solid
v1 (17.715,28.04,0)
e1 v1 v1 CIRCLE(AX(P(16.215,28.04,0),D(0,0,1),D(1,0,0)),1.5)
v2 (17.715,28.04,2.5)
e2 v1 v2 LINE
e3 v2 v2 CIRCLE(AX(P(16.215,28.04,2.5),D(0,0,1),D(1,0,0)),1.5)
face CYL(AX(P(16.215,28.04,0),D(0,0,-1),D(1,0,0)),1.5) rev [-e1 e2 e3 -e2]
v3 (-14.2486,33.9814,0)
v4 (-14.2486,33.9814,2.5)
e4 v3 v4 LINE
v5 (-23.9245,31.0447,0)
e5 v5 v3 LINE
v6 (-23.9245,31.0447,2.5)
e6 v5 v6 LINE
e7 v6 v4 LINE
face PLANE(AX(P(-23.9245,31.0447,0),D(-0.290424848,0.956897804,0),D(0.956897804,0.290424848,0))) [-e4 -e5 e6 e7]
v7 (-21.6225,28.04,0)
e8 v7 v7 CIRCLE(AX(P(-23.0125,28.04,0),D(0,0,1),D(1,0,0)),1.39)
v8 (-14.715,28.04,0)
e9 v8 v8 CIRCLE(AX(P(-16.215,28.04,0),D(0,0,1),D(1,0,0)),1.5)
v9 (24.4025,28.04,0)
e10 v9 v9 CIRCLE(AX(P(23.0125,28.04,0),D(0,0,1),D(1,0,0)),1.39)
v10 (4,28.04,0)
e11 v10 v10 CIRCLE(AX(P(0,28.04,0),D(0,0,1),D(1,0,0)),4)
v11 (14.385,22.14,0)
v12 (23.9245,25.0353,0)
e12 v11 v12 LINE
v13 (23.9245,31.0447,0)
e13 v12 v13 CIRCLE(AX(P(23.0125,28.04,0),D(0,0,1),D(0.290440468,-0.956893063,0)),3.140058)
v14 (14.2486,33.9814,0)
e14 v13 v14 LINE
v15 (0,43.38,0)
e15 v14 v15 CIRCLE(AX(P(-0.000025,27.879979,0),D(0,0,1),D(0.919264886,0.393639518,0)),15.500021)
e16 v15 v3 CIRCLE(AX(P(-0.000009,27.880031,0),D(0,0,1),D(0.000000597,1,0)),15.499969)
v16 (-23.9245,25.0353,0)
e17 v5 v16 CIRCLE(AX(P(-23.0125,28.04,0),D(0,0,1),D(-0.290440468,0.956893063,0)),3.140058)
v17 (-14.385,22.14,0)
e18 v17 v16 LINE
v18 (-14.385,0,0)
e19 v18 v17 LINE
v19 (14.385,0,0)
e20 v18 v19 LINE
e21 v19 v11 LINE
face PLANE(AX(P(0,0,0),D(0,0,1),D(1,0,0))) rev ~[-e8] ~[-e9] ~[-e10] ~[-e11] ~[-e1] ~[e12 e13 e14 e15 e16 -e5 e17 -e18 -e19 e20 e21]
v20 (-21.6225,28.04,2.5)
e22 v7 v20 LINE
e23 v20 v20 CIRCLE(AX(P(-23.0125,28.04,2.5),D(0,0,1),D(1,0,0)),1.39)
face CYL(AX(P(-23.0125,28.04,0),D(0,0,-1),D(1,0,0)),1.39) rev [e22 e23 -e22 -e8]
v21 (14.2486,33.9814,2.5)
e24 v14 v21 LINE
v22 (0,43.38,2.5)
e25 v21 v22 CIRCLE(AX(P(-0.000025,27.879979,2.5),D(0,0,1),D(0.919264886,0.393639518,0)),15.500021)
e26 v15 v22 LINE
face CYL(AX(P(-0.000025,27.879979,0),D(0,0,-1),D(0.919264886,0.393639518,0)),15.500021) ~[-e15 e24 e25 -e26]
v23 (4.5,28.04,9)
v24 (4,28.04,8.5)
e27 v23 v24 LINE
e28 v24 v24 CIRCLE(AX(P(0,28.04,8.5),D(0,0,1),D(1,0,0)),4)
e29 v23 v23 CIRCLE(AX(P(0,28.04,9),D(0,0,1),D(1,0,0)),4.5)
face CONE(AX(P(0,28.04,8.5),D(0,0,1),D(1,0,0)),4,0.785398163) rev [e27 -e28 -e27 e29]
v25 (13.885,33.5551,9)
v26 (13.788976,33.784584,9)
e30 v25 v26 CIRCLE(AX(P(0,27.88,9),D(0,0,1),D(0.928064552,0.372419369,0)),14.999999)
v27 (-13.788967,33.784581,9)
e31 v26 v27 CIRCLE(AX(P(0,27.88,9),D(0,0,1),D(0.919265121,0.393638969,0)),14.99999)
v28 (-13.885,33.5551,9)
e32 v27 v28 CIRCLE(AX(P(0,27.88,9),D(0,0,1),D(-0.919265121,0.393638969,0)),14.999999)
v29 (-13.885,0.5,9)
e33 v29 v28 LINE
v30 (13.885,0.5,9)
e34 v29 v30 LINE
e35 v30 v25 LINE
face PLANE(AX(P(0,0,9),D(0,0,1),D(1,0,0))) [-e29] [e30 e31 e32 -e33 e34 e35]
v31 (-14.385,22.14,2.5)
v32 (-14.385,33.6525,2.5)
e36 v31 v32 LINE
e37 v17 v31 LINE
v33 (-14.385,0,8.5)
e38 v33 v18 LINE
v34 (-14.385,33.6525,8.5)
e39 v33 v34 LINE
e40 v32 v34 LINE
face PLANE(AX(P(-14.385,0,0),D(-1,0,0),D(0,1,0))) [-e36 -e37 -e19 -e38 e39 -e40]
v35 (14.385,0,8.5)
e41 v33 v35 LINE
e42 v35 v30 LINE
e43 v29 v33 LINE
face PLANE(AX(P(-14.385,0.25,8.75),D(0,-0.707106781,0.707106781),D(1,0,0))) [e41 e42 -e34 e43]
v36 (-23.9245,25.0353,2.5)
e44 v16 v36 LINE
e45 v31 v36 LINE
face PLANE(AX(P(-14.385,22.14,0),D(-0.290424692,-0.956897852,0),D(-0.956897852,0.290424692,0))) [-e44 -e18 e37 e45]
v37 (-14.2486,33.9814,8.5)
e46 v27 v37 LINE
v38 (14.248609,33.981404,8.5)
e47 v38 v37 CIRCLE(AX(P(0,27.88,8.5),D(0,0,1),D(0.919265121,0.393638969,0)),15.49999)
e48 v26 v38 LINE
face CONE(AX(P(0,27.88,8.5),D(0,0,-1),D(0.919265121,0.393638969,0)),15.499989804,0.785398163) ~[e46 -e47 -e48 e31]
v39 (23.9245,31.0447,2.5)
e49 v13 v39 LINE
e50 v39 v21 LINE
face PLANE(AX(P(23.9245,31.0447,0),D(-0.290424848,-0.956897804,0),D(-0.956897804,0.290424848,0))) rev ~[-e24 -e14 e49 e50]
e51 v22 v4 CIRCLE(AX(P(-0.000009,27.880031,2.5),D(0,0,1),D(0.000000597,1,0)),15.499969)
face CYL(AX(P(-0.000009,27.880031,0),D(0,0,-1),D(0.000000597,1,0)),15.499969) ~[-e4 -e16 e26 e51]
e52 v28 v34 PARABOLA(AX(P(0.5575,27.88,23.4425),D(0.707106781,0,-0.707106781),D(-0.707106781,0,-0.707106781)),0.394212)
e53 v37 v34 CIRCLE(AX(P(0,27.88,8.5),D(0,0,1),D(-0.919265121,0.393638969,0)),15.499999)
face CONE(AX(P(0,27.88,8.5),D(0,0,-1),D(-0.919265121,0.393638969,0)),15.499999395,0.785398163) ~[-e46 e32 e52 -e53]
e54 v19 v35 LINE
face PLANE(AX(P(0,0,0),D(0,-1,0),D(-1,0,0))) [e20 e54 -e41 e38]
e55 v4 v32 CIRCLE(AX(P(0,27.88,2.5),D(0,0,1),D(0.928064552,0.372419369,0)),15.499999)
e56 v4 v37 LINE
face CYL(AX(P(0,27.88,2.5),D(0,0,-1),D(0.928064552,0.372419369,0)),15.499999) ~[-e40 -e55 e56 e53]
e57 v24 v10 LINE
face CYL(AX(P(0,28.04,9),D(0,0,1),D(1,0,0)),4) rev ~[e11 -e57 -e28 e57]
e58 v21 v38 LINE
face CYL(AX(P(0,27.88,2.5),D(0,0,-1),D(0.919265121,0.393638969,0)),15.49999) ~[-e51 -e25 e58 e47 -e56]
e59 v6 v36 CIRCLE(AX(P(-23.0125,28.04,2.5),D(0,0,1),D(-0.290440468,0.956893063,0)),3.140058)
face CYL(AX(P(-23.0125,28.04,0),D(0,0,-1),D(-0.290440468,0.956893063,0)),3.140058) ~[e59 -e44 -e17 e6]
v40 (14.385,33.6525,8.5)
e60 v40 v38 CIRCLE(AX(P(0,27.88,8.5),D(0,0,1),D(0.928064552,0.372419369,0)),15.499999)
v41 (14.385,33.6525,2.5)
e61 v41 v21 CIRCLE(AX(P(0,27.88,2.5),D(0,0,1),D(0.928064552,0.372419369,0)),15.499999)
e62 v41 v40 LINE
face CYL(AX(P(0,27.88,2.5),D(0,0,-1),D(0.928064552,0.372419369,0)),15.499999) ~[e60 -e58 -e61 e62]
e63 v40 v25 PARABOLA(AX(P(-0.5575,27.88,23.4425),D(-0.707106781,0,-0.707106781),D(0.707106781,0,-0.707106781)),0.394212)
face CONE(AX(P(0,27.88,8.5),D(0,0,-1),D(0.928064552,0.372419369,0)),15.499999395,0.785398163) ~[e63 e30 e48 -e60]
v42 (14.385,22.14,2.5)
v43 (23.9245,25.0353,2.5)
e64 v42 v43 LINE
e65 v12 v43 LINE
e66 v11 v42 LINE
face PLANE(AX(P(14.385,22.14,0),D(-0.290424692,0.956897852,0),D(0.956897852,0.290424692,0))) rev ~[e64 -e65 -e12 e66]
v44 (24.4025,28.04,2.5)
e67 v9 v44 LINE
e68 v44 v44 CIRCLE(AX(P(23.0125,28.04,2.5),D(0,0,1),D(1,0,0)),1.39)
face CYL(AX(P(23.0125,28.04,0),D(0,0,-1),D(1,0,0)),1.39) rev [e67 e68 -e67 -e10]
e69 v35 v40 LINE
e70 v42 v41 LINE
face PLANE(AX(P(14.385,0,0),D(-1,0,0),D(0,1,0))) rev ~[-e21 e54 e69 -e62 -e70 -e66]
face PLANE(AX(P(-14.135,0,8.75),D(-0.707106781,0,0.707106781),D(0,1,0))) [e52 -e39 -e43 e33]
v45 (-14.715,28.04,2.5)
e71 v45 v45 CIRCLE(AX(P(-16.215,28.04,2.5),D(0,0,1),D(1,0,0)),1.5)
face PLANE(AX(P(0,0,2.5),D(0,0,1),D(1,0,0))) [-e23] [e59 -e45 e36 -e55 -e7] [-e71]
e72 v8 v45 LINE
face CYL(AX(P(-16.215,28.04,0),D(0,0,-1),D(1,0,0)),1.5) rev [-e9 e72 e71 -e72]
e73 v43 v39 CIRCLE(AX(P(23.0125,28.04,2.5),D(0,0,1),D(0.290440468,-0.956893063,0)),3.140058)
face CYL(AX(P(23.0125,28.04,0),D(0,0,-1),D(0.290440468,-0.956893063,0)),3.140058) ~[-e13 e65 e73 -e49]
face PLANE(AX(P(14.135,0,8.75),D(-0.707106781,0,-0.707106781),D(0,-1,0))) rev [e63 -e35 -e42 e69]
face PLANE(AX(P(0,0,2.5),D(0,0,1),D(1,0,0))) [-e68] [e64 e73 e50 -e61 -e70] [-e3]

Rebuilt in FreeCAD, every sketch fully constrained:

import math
import FreeCAD as App
import Part
import Sketcher

V = App.Vector


def edges_at(feature, points):
    """Names of the edges that pass closest to the given points."""
    edges = feature.Shape.Edges
    near = lambda p: min(range(len(edges)), key=lambda i: edges[i].distToShape(Part.Vertex(*p))[0])
    return sorted({f"Edge{near(p) + 1}" for p in points})

doc = App.newDocument("Part")
body = doc.addObject("PartDesign::Body", "Body")

sketch1 = doc.addObject("Sketcher::SketchObject", "Sketch")
body.addObject(sketch1)
sketch1.AttachmentSupport = (doc.XY_Plane, [""])
sketch1.MapMode = "FlatFace"
sketch1.addGeometry([
    Part.LineSegment(V(-14.4, 0, 0), V(14.4, 0, 0)),
    Part.LineSegment(V(14.4, 0, 0), V(14.4, 22.1, 0)),
    Part.LineSegment(V(14.4, 22.1, 0), V(23.9, 25, 0)),
    Part.ArcOfCircle(Part.Circle(V(23, 28, 0), V(0, 0, 1), 3.1), math.radians(-73), math.radians(73)),
    Part.LineSegment(V(23.9, 31, 0), V(14.2, 34, 0)),
    Part.ArcOfCircle(Part.Circle(V(0, 27.9, 0), V(0, 0, 1), 15.5), math.radians(23), math.radians(90)),
    Part.ArcOfCircle(Part.Circle(V(0, 27.9, 0), V(0, 0, 1), 15.5), math.radians(90), math.radians(157)),
    Part.LineSegment(V(-14.2, 34, 0), V(-23.9, 31, 0)),
    Part.ArcOfCircle(Part.Circle(V(-23, 28, 0), V(0, 0, 1), 3.1), math.radians(107), math.radians(253)),
    Part.LineSegment(V(-23.9, 25, 0), V(-14.4, 22.1, 0)),
    Part.LineSegment(V(-14.4, 22.1, 0), V(-14.4, 0, 0)),
    Part.Circle(V(-23, 28, 0), V(0, 0, 1), 1.4),
    Part.Circle(V(-16.2, 28, 0), V(0, 0, 1), 1.5),
    Part.Circle(V(16.2, 28, 0), V(0, 0, 1), 1.5),
    Part.Circle(V(23, 28, 0), V(0, 0, 1), 1.4),
], False)
sketch1.addConstraint([
    Sketcher.Constraint("Coincident", 0, 2, 1, 1),
    Sketcher.Constraint("Coincident", 1, 2, 2, 1),
    Sketcher.Constraint("Tangent", 2, 2, 3, 1),
    Sketcher.Constraint("Tangent", 3, 2, 4, 1),
    Sketcher.Constraint("Coincident", 4, 2, 5, 1),
    Sketcher.Constraint("Tangent", 5, 2, 6, 1),
    Sketcher.Constraint("Coincident", 6, 2, 7, 1),
    Sketcher.Constraint("Tangent", 7, 2, 8, 1),
    Sketcher.Constraint("Tangent", 8, 2, 9, 1),
    Sketcher.Constraint("Coincident", 9, 2, 10, 1),
    Sketcher.Constraint("Coincident", 10, 2, 0, 1),
    Sketcher.Constraint("Horizontal", 0),
    Sketcher.Constraint("Vertical", 1),
    Sketcher.Constraint("Vertical", 10),
    Sketcher.Constraint("Coincident", 11, 3, 8, 3),
    Sketcher.Constraint("Coincident", 14, 3, 3, 3),
    Sketcher.Constraint("Equal", 5, 6),
    Sketcher.Constraint("Equal", 3, 8),
    Sketcher.Constraint("Equal", 12, 13),
    Sketcher.Constraint("Equal", 11, 14),
    Sketcher.Constraint("Symmetric", 0, 2, 10, 2, -1, 1),
    Sketcher.Constraint("Symmetric", 3, 3, 8, 3, -2),
    Sketcher.Constraint("Symmetric", 12, 3, 13, 3, -2),
    Sketcher.Constraint("Symmetric", 4, 2, 6, 2, -2),
    Sketcher.Constraint("PointOnObject", 5, 2, -2),
    Sketcher.Constraint("Parallel", 2, 7),
    Sketcher.Constraint("Parallel", 4, 9),
    Sketcher.Constraint("Horizontal", 11, 3, 12, 3),
    Sketcher.Constraint("Diameter", 12, 3.0),
    Sketcher.Constraint("Radius", 5, 15.5),
    Sketcher.Constraint("Diameter", 11, 2.78),
    Sketcher.Constraint("Radius", 3, 3.14),
    Sketcher.Constraint("DistanceY", 1, 2, 13, 3, 5.9),
    Sketcher.Constraint("DistanceY", -1, 1, 5, 2, 43.38),
    Sketcher.Constraint("DistanceY", 12, 3, 5, 2, 15.34),
    Sketcher.Constraint("DistanceX", 12, 3, -1, 1, 16.215),
    Sketcher.Constraint("DistanceX", -1, 1, 0, 2, 14.385),
    Sketcher.Constraint("DistanceX", -1, 1, 3, 3, 23.0125),
])
pad1 = doc.addObject("PartDesign::Pad", "Pad")
body.addObject(pad1)
pad1.Profile = sketch1
pad1.Length = 2.5

sketch2 = doc.addObject("Sketcher::SketchObject", "Sketch001")
body.addObject(sketch2)
sketch2.AttachmentSupport = (doc.XY_Plane, [""])
sketch2.MapMode = "FlatFace"
sketch2.AttachmentOffset = App.Placement(V(0, 0, 2.5), App.Rotation())
sketch2.addGeometry([
    Part.LineSegment(V(-14, 34, 0), V(-14, 0, 0)),
    Part.LineSegment(V(-14, 0, 0), V(14, 0, 0)),
    Part.LineSegment(V(14, 0, 0), V(14, 34, 0)),
    Part.ArcOfCircle(Part.Circle(V(0, 28, 0), V(0, 0, 1), 15), math.radians(22), math.radians(158)),
], False)
sketch2.addConstraint([
    Sketcher.Constraint("Coincident", 0, 2, 1, 1),
    Sketcher.Constraint("Coincident", 1, 2, 2, 1),
    Sketcher.Constraint("Coincident", 2, 2, 3, 1),
    Sketcher.Constraint("Coincident", 3, 2, 0, 1),
    Sketcher.Constraint("Vertical", 0),
    Sketcher.Constraint("Horizontal", 1),
    Sketcher.Constraint("Vertical", 2),
    Sketcher.Constraint("Symmetric", 0, 2, 1, 2, -1, 1),
    Sketcher.Constraint("PointOnObject", 3, 3, -2),
    Sketcher.Constraint("Radius", 3, 15.5),
    Sketcher.Constraint("DistanceX", 1, 1, 1, 2, 28.77),
    Sketcher.Constraint("DistanceY", -1, 1, 3, 3, 27.88),
])
pad2 = doc.addObject("PartDesign::Pad", "Pad001")
body.addObject(pad2)
pad2.Profile = sketch2
pad2.Length = 6.5

sketch3 = doc.addObject("Sketcher::SketchObject", "Sketch002")
body.addObject(sketch3)
sketch3.AttachmentSupport = (doc.XY_Plane, [""])
sketch3.MapMode = "FlatFace"
sketch3.AttachmentOffset = App.Placement(V(0, 0, 9), App.Rotation())
sketch3.addGeometry(Part.Circle(V(0, 28, 0), V(0, 0, 1), 4), False)
sketch3.addConstraint([
    Sketcher.Constraint("PointOnObject", 0, 3, -2),
    Sketcher.Constraint("Diameter", 0, 8.0),
    Sketcher.Constraint("DistanceY", -1, 1, 0, 3, 28.04),
])
pocket1 = doc.addObject("PartDesign::Pocket", "Pocket")
body.addObject(pocket1)
pocket1.Profile = sketch3
pocket1.Type = "UpToFirst"
doc.recompute()

chamfer = doc.addObject("PartDesign::Chamfer", "Chamfer")
body.addObject(chamfer)
chamfer.Base = (pocket1, edges_at(pocket1, [
    (-14.385, 16.826, 9),
    (0, 0, 9),
    (14.385, 16.826, 9),
    (0, 43.38, 9),
    (-4, 28.04, 9),
]))
chamfer.Size = 0.5

doc.recompute()
